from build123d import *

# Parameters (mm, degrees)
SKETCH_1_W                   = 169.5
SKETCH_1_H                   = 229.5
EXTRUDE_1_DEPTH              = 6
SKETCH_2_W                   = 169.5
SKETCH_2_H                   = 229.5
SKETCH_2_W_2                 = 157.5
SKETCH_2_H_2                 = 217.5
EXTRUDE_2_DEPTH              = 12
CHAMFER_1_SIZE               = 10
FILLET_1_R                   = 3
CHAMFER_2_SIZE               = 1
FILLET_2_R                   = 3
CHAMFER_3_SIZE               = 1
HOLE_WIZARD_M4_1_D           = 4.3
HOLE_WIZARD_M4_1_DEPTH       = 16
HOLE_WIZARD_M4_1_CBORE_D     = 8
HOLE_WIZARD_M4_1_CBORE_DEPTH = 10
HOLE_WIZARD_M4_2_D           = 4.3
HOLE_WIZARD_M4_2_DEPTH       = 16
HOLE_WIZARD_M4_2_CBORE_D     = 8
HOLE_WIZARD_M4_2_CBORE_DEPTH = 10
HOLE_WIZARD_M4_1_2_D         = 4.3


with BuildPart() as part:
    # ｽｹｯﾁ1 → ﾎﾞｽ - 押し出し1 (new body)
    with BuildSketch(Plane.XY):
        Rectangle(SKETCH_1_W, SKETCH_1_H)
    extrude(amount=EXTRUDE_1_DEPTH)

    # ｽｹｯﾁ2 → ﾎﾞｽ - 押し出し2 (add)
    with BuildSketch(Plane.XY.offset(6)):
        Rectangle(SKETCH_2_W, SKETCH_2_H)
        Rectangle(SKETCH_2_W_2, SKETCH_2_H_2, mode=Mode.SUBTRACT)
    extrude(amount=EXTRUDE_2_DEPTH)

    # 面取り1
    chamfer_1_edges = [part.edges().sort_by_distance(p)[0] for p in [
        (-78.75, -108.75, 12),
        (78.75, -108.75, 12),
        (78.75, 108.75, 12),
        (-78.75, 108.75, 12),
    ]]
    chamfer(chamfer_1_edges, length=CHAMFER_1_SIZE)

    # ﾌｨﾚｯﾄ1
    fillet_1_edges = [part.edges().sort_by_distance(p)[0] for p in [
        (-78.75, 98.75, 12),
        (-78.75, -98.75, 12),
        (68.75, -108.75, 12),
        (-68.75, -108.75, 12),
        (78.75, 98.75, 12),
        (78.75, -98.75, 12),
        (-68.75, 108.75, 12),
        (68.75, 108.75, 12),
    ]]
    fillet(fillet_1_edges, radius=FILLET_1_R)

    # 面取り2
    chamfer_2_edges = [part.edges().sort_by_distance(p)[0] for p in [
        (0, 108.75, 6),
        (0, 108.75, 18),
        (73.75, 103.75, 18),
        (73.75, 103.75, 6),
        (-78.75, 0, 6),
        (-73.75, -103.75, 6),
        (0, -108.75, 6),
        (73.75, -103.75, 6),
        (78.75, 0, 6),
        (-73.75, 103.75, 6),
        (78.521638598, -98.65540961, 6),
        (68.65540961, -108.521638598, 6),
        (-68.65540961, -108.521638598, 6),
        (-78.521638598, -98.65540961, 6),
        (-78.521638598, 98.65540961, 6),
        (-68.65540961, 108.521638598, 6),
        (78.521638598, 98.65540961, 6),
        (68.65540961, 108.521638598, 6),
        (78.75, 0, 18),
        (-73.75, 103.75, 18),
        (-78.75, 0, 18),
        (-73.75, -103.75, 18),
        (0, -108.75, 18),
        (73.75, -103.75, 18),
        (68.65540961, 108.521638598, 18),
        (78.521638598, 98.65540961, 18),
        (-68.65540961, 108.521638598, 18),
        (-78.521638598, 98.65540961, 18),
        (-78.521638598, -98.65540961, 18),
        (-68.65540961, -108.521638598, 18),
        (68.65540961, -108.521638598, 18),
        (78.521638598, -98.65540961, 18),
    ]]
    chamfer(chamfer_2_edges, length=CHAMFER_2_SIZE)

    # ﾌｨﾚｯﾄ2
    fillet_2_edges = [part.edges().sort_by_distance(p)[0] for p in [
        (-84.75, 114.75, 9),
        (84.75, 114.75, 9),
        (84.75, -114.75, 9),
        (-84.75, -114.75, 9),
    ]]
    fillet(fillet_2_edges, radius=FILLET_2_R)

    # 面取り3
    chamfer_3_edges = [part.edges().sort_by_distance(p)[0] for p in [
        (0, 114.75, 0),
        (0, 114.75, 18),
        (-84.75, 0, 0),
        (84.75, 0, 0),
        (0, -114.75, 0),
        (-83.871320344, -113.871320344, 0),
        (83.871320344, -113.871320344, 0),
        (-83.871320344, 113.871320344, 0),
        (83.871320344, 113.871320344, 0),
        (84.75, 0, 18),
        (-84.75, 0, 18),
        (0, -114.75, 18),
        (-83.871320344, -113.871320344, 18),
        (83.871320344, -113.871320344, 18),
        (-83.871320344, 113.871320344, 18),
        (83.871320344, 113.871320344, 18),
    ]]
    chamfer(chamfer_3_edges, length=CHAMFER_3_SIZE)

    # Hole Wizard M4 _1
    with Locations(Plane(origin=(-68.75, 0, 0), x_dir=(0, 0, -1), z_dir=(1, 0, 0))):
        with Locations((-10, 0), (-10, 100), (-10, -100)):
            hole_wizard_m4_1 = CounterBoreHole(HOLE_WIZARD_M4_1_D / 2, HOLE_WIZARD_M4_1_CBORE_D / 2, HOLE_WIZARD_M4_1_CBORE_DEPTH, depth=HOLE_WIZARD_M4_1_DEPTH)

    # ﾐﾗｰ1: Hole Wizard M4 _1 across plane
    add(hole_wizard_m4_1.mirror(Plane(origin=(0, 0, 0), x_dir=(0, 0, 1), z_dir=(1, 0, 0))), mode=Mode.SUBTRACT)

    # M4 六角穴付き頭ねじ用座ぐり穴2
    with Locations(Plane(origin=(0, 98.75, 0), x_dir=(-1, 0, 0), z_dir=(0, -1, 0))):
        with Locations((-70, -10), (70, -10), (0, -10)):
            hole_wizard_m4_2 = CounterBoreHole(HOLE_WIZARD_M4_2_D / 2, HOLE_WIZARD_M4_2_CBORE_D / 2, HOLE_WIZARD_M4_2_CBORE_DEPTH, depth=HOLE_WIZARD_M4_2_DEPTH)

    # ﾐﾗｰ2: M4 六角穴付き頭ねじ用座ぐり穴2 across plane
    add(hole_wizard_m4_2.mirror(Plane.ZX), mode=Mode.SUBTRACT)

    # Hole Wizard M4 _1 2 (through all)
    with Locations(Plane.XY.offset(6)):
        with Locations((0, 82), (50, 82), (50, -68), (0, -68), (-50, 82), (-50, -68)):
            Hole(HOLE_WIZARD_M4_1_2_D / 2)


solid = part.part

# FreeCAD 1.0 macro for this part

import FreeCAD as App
import Part
import Sketcher
from FreeCAD import Vector
Q = App.Units.Quantity


def edges_at(feature, points):
    """Names of the edges that pass closest to the given points."""
    edges = feature.Shape.Edges
    near = lambda p: min(range(len(edges)), key=lambda i: edges[i].distToShape(Part.Vertex(*p))[0])
    return sorted({f"Edge{near(p) + 1}" for p in points})

doc = App.newDocument("Part")
body = doc.addObject("PartDesign::Body", "Body")

# Sketch on XY plane
sketch1 = body.newObject("Sketcher::SketchObject", "Sketch")
sketch1.AttachmentSupport = (doc.getObject("XY_Plane"), [""])
sketch1.MapMode = "FlatFace"
sketch1.addGeometry([
    Part.LineSegment(Vector(-85, 115, 0), Vector(-85, -115, 0)),
    Part.LineSegment(Vector(-85, -115, 0), Vector(85, -115, 0)),
    Part.LineSegment(Vector(85, -115, 0), Vector(85, 115, 0)),
    Part.LineSegment(Vector(85, 115, 0), Vector(-85, 115, 0)),
], False)
sketch1.addConstraint([
    Sketcher.Constraint("Coincident", 0, 2, 1, 1),
    Sketcher.Constraint("Coincident", 1, 2, 2, 1),
    Sketcher.Constraint("Coincident", 2, 2, 3, 1),
    Sketcher.Constraint("Coincident", 3, 2, 0, 1),
    Sketcher.Constraint("Vertical", 0),
    Sketcher.Constraint("Horizontal", 1),
    Sketcher.Constraint("Vertical", 2),
    Sketcher.Constraint("Horizontal", 3),
    Sketcher.Constraint("Symmetric", 0, 2, 2, 2, -1, 1),
    Sketcher.Constraint("DistanceX", 1, 1, 1, 2, Q("169.5 mm")),
    Sketcher.Constraint("DistanceY", 0, 2, 0, 1, Q("229.5 mm")),
])
pad1 = body.newObject("PartDesign::Pad", "Pad")
pad1.Profile = sketch1
pad1.Length = 6

# Sketch on XY plane
sketch2 = body.newObject("Sketcher::SketchObject", "Sketch001")
sketch2.AttachmentSupport = (doc.getObject("XY_Plane"), [""])
sketch2.MapMode = "FlatFace"
sketch2.AttachmentOffset = App.Placement(Vector(0, 0, 6), App.Rotation())
sketch2.addGeometry([
    Part.LineSegment(Vector(-85, 115, 0), Vector(-85, -115, 0)),  # 0
    Part.LineSegment(Vector(-85, -115, 0), Vector(85, -115, 0)),  # 1
    Part.LineSegment(Vector(85, -115, 0), Vector(85, 115, 0)),  # 2
    Part.LineSegment(Vector(85, 115, 0), Vector(-85, 115, 0)),  # 3
    Part.LineSegment(Vector(79, -109, 0), Vector(-79, -109, 0)),  # 4
    Part.LineSegment(Vector(-79, -109, 0), Vector(-79, 109, 0)),  # 5
    Part.LineSegment(Vector(-79, 109, 0), Vector(79, 109, 0)),  # 6
    Part.LineSegment(Vector(79, 109, 0), Vector(79, -109, 0)),  # 7
], False)
sketch2.addConstraint([
    Sketcher.Constraint("Coincident", 0, 2, 1, 1),
    Sketcher.Constraint("Coincident", 1, 2, 2, 1),
    Sketcher.Constraint("Coincident", 2, 2, 3, 1),
    Sketcher.Constraint("Coincident", 3, 2, 0, 1),
    Sketcher.Constraint("Coincident", 4, 2, 5, 1),
    Sketcher.Constraint("Coincident", 5, 2, 6, 1),
    Sketcher.Constraint("Coincident", 6, 2, 7, 1),
    Sketcher.Constraint("Coincident", 7, 2, 4, 1),
    Sketcher.Constraint("Vertical", 0),
    Sketcher.Constraint("Horizontal", 1),
    Sketcher.Constraint("Vertical", 2),
    Sketcher.Constraint("Horizontal", 3),
    Sketcher.Constraint("Horizontal", 4),
    Sketcher.Constraint("Vertical", 5),
    Sketcher.Constraint("Horizontal", 6),
    Sketcher.Constraint("Vertical", 7),
    Sketcher.Constraint("Symmetric", 0, 2, 2, 2, -1, 1),
    Sketcher.Constraint("Symmetric", 4, 2, 6, 2, -1, 1),
    Sketcher.Constraint("DistanceX", 1, 1, 1, 2, Q("169.5 mm")),
    Sketcher.Constraint("DistanceX", 4, 2, 4, 1, Q("157.5 mm")),
    Sketcher.Constraint("DistanceY", 0, 2, 0, 1, Q("229.5 mm")),
    Sketcher.Constraint("DistanceY", 5, 1, 5, 2, Q("217.5 mm")),
])
pad2 = body.newObject("PartDesign::Pad", "Pad001")
pad2.Profile = sketch2
pad2.Length = 12
doc.recompute()

chamfer = body.newObject("PartDesign::Chamfer", "Chamfer")
chamfer.Base = (pad2, edges_at(pad2, [
    (-78.75, -108.75, 12),
    (78.75, -108.75, 12),
    (78.75, 108.75, 12),
    (-78.75, 108.75, 12),
]))
chamfer.Size = 10
doc.recompute()

fillet = body.newObject("PartDesign::Fillet", "Fillet")
fillet.Base = (chamfer, edges_at(chamfer, [
    (-78.75, 98.75, 12),
    (-78.75, -98.75, 12),
    (68.75, -108.75, 12),
    (-68.75, -108.75, 12),
    (78.75, 98.75, 12),
    (78.75, -98.75, 12),
    (-68.75, 108.75, 12),
    (68.75, 108.75, 12),
]))
fillet.Radius = 3
doc.recompute()

chamfer2 = body.newObject("PartDesign::Chamfer", "Chamfer001")
chamfer2.Base = (fillet, edges_at(fillet, [
    (0, 108.75, 6),
    (0, 108.75, 18),
    (73.75, 103.75, 18),
    (73.75, 103.75, 6),
    (-78.75, 0, 6),
    (-73.75, -103.75, 6),
    (0, -108.75, 6),
    (73.75, -103.75, 6),
    (78.75, 0, 6),
    (-73.75, 103.75, 6),
    (78.522, -98.655, 6),
    (68.655, -108.522, 6),
    (-68.655, -108.522, 6),
    (-78.522, -98.655, 6),
    (-78.522, 98.655, 6),
    (-68.655, 108.522, 6),
    (78.522, 98.655, 6),
    (68.655, 108.522, 6),
    (78.75, 0, 18),
    (-73.75, 103.75, 18),
    (-78.75, 0, 18),
    (-73.75, -103.75, 18),
    (0, -108.75, 18),
    (73.75, -103.75, 18),
    (68.655, 108.522, 18),
    (78.522, 98.655, 18),
    (-68.655, 108.522, 18),
    (-78.522, 98.655, 18),
    (-78.522, -98.655, 18),
    (-68.655, -108.522, 18),
    (68.655, -108.522, 18),
    (78.522, -98.655, 18),
]))
chamfer2.Size = 1
doc.recompute()

fillet2 = body.newObject("PartDesign::Fillet", "Fillet001")
fillet2.Base = (chamfer2, edges_at(chamfer2, [
    (-84.75, 114.75, 9),
    (84.75, 114.75, 9),
    (84.75, -114.75, 9),
    (-84.75, -114.75, 9),
]))
fillet2.Radius = 3
doc.recompute()

chamfer3 = body.newObject("PartDesign::Chamfer", "Chamfer002")
chamfer3.Base = (fillet2, edges_at(fillet2, [
    (0, 114.75, 0),
    (0, 114.75, 18),
    (-84.75, 0, 0),
    (84.75, 0, 0),
    (0, -114.75, 0),
    (-83.871, -113.871, 0),
    (83.871, -113.871, 0),
    (-83.871, 113.871, 0),
    (83.871, 113.871, 0),
    (84.75, 0, 18),
    (-84.75, 0, 18),
    (0, -114.75, 18),
    (-83.871, -113.871, 18),
    (83.871, -113.871, 18),
    (-83.871, 113.871, 18),
    (83.871, 113.871, 18),
]))
chamfer3.Size = 1

# Sketch on YZ plane
sketch3 = body.newObject("Sketcher::SketchObject", "Sketch002")
sketch3.AttachmentSupport = (doc.getObject("YZ_Plane"), [""])
sketch3.MapMode = "FlatFace"
sketch3.AttachmentOffset = App.Placement(Vector(0, 0, -68.75), App.Rotation())
sketch3.addGeometry([
    Part.Circle(Vector(0, 10, 0), Vector(0, 0, 1), 2.1),
    Part.Circle(Vector(100, 10, 0), Vector(0, 0, 1), 2.1),
    Part.Circle(Vector(-100, 10, 0), Vector(0, 0, 1), 2.1),
], False)
sketch3.addConstraint([
    Sketcher.Constraint("Equal", 0, 1),
    Sketcher.Constraint("Equal", 1, 2),
    Sketcher.Constraint("Symmetric", 1, 3, 2, 3, -2),
    Sketcher.Constraint("PointOnObject", 0, 3, -2),
    Sketcher.Constraint("Horizontal", 0, 3, 1, 3),
    Sketcher.Constraint("Diameter", 0, Q("4.3 mm")),
    Sketcher.Constraint("DistanceY", -1, 1, 0, 3, Q("10 mm")),
    Sketcher.Constraint("DistanceX", -1, 1, 1, 3, Q("100 mm")),
])
doc.recompute()
hole = body.newObject("PartDesign::Hole", "Hole")
hole.Profile = sketch3
hole.ThreadType = "None"
hole.Diameter = 4.3
hole.DepthType = "Dimension"
hole.Depth = 16
hole.DrillPoint = "Flat"
hole.HoleCutType = "Counterbore"
hole.HoleCutDiameter = 8
hole.HoleCutDepth = 10
doc.recompute()

mirrored = body.newObject("PartDesign::Mirrored", "Mirrored")
mirrored.Originals = [hole]
mirrored.MirrorPlane = (doc.getObject("YZ_Plane"), [""])
body.Tip = mirrored

# Sketch on XZ plane
sketch4 = body.newObject("Sketcher::SketchObject", "Sketch003")
sketch4.AttachmentSupport = (doc.getObject("XZ_Plane"), [""])
sketch4.MapMode = "FlatFace"
sketch4.AttachmentOffset = App.Placement(Vector(0, 0, -98.75), App.Rotation())
sketch4.addGeometry([
    Part.Circle(Vector(70, 10, 0), Vector(0, 0, 1), 2.1),
    Part.Circle(Vector(-70, 10, 0), Vector(0, 0, 1), 2.1),
    Part.Circle(Vector(0, 10, 0), Vector(0, 0, 1), 2.1),
], False)
sketch4.addConstraint([
    Sketcher.Constraint("Equal", 0, 1),
    Sketcher.Constraint("Equal", 1, 2),
    Sketcher.Constraint("Symmetric", 0, 3, 1, 3, -2),
    Sketcher.Constraint("PointOnObject", 2, 3, -2),
    Sketcher.Constraint("Horizontal", 1, 3, 2, 3),
    Sketcher.Constraint("Diameter", 0, Q("4.3 mm")),
    Sketcher.Constraint("DistanceX", -1, 1, 0, 3, Q("70 mm")),
    Sketcher.Constraint("DistanceY", -1, 1, 0, 3, Q("10 mm")),
])
doc.recompute()
hole2 = body.newObject("PartDesign::Hole", "Hole001")
hole2.Profile = sketch4
hole2.ThreadType = "None"
hole2.Diameter = 4.3
hole2.DepthType = "Dimension"
hole2.Depth = 16
hole2.DrillPoint = "Flat"
hole2.HoleCutType = "Counterbore"
hole2.HoleCutDiameter = 8
hole2.HoleCutDepth = 10
doc.recompute()

mirrored2 = body.newObject("PartDesign::Mirrored", "Mirrored001")
mirrored2.Originals = [hole2]
mirrored2.MirrorPlane = (doc.getObject("XZ_Plane"), [""])
body.Tip = mirrored2

# Sketch on XY plane
sketch5 = body.newObject("Sketcher::SketchObject", "Sketch004")
sketch5.AttachmentSupport = (doc.getObject("XY_Plane"), [""])
sketch5.MapMode = "FlatFace"
sketch5.AttachmentOffset = App.Placement(Vector(0, 0, 6), App.Rotation())
sketch5.addGeometry([
    Part.Circle(Vector(0, 82, 0), Vector(0, 0, 1), 2.1),  # 0
    Part.Circle(Vector(50, 82, 0), Vector(0, 0, 1), 2.1),  # 1
    Part.Circle(Vector(50, -68, 0), Vector(0, 0, 1), 2.1),  # 2
    Part.Circle(Vector(0, -68, 0), Vector(0, 0, 1), 2.1),  # 3
    Part.Circle(Vector(-50, 82, 0), Vector(0, 0, 1), 2.1),  # 4
    Part.Circle(Vector(-50, -68, 0), Vector(0, 0, 1), 2.1),  # 5
], False)
sketch5.addConstraint([
    Sketcher.Constraint("Equal", 0, 1),
    Sketcher.Constraint("Equal", 1, 2),
    Sketcher.Constraint("Equal", 2, 3),
    Sketcher.Constraint("Equal", 3, 4),
    Sketcher.Constraint("Equal", 4, 5),
    Sketcher.Constraint("Symmetric", 1, 3, 4, 3, -2),
    Sketcher.Constraint("Symmetric", 2, 3, 5, 3, -2),
    Sketcher.Constraint("PointOnObject", 0, 3, -2),
    Sketcher.Constraint("PointOnObject", 3, 3, -2),
    Sketcher.Constraint("Horizontal", 0, 3, 1, 3),
    Sketcher.Constraint("Horizontal", 2, 3, 3, 3),
    Sketcher.Constraint("Vertical", 1, 3, 2, 3),
    Sketcher.Constraint("Diameter", 0, Q("4.3 mm")),
    Sketcher.Constraint("DistanceY", -1, 1, 0, 3, Q("82 mm")),
    Sketcher.Constraint("DistanceX", -1, 1, 1, 3, Q("50 mm")),
    Sketcher.Constraint("DistanceY", 2, 3, -1, 1, Q("68 mm")),
])
doc.recompute()
hole3 = body.newObject("PartDesign::Hole", "Hole002")
hole3.Profile = sketch5
hole3.ThreadType = "None"
hole3.Diameter = 4.3
hole3.DepthType = "ThroughAll"

doc.recompute()
